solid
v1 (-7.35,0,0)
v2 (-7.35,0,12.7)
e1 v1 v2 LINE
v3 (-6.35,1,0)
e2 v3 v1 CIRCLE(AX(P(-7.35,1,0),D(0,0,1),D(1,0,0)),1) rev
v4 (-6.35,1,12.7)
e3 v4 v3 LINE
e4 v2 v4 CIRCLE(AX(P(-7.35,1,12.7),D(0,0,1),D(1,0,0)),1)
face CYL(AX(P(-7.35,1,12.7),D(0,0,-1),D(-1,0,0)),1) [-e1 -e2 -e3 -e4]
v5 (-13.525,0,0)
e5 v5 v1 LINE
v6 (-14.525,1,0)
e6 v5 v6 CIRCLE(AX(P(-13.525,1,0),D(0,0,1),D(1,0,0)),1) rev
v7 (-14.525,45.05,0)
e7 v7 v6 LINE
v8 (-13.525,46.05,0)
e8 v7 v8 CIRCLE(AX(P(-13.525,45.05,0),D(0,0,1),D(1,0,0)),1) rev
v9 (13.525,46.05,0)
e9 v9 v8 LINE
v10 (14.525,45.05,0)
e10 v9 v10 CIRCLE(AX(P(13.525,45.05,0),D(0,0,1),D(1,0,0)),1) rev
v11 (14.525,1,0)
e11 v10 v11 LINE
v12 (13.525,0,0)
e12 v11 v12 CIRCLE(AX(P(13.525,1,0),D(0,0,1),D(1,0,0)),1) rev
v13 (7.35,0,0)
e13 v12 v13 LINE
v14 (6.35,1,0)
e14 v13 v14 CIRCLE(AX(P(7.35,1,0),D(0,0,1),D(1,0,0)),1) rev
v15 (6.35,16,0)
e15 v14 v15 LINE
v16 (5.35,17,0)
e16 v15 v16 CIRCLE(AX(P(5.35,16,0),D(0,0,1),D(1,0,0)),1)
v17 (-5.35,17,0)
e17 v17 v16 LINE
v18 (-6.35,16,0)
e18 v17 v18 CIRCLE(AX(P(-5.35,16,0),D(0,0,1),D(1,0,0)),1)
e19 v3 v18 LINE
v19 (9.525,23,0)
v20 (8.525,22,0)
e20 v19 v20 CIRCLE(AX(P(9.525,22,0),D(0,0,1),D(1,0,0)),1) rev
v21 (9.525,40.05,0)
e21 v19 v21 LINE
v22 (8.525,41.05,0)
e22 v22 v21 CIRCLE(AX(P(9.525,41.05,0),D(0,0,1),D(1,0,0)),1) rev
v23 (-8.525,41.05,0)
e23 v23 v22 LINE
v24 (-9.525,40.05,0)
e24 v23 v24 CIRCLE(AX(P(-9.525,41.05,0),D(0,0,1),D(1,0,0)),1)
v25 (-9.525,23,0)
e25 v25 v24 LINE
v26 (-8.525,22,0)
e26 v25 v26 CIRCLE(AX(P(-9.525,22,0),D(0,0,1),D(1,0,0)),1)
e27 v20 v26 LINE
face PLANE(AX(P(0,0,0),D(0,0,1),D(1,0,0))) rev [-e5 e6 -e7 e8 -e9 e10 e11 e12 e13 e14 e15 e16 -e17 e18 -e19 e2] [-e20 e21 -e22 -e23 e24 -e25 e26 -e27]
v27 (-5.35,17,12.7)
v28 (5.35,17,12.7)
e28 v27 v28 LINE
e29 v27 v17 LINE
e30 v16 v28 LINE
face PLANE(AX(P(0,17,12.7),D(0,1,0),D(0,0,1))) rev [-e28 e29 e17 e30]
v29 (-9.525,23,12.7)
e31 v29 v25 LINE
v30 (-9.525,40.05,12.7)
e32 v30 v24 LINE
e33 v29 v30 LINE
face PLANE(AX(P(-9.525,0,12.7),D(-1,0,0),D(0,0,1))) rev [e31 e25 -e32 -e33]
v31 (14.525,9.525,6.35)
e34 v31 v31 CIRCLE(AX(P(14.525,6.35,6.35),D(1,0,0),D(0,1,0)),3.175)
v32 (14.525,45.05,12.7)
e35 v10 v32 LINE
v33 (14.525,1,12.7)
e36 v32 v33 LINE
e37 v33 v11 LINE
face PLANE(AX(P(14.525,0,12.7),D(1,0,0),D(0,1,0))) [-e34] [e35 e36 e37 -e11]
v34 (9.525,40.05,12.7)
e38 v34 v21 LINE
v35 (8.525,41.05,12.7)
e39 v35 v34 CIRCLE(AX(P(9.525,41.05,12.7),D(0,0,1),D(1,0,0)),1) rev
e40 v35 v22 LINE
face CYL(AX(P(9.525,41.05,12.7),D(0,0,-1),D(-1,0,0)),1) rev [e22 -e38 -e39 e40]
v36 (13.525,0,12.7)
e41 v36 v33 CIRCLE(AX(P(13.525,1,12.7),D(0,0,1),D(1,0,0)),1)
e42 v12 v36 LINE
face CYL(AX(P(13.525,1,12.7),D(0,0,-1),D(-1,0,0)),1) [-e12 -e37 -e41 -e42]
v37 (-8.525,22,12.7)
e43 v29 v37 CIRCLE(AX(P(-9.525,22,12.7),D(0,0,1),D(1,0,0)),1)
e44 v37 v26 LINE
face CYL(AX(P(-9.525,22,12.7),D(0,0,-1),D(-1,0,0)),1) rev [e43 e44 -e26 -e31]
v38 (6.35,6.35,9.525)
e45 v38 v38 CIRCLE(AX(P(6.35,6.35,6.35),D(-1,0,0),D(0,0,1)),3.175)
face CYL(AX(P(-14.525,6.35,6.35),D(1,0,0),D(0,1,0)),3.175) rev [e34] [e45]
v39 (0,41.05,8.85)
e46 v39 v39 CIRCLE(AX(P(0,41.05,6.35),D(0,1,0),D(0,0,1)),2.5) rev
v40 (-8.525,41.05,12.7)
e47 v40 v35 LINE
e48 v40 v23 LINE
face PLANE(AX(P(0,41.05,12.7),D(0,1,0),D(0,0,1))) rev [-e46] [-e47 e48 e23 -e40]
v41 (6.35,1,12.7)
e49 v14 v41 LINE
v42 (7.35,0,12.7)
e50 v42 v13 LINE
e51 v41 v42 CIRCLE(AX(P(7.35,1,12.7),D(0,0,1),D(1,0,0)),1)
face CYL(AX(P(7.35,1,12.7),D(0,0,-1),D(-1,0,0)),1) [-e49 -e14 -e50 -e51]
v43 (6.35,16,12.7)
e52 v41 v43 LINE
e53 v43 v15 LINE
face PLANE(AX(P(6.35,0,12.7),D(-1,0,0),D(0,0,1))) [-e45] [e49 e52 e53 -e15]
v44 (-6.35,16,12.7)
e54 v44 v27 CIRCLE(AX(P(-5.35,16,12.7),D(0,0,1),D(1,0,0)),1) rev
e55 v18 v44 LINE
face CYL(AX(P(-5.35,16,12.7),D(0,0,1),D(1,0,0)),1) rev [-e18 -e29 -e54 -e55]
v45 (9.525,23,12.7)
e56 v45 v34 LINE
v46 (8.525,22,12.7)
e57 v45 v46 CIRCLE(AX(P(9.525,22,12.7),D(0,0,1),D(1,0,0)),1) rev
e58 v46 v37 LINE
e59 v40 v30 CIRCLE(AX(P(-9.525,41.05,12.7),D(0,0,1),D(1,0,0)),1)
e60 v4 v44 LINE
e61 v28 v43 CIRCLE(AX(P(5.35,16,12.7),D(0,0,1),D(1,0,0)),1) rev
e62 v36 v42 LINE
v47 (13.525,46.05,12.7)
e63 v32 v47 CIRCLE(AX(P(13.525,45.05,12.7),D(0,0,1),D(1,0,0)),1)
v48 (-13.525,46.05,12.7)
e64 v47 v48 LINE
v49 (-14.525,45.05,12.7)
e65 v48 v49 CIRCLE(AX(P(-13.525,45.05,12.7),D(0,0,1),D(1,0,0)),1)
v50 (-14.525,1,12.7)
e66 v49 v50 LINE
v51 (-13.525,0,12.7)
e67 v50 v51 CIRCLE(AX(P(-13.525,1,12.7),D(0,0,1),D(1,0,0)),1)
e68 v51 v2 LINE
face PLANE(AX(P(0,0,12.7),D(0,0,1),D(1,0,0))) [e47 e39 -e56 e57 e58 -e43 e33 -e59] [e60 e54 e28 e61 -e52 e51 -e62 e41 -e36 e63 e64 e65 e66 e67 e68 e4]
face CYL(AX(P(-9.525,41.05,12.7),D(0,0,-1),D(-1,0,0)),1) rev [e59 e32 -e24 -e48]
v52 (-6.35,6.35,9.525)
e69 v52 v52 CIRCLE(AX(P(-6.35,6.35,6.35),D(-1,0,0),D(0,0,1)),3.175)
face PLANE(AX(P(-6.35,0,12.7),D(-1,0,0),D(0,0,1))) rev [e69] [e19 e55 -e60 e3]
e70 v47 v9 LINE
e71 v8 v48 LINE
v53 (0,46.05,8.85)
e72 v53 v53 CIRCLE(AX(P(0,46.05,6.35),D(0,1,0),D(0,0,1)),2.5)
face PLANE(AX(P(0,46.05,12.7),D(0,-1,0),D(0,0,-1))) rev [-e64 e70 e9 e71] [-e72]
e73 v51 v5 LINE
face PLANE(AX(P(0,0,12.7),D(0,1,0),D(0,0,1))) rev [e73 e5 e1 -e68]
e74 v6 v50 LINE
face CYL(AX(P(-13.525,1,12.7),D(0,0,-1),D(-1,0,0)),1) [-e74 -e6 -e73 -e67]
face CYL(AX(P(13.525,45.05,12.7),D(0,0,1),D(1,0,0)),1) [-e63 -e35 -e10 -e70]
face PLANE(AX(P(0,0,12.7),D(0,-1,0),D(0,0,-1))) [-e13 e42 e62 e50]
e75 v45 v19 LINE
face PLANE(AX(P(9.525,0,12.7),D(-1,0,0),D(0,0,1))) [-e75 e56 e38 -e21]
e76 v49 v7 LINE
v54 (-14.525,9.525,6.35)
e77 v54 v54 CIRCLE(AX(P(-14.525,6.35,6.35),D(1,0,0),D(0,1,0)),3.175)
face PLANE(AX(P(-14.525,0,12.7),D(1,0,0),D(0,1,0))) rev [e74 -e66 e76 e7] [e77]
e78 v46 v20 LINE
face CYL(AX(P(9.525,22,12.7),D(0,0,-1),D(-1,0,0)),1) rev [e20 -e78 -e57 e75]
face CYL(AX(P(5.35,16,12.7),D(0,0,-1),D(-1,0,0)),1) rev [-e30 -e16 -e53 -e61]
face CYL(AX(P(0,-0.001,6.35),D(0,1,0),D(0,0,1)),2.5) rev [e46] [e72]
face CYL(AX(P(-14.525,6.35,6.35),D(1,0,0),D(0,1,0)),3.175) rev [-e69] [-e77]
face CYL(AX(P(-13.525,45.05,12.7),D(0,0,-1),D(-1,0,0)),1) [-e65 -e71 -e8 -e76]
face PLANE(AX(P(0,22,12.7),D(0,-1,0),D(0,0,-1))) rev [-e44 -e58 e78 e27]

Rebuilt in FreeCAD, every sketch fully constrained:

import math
import FreeCAD as App
import Part
import Sketcher
from FreeCAD import Vector
Q = App.Units.Quantity


def edges_at(feature, points):
    """Names of the edges that pass closest to the given points."""
    edges = feature.Shape.Edges
    near = lambda p: min(range(len(edges)), key=lambda i: edges[i].distToShape(Part.Vertex(*p))[0])
    return sorted({f"Edge{near(p) + 1}" for p in points})

doc = App.newDocument("Part")
body = doc.addObject("PartDesign::Body", "Body")

# Sketch on XY plane
sketch1 = body.newObject("Sketcher::SketchObject", "Sketch")
sketch1.AttachmentSupport = (doc.getObject("XY_Plane"), [""])
sketch1.MapMode = "FlatFace"
sketch1.addGeometry(Part.LineSegment(Vector(-14.525, 46.05, 0), Vector(-14.525, 0, 0)), False)
sketch1.addGeometry(Part.LineSegment(Vector(-14.525, 0, 0), Vector(-6.35, 0, 0)), False)
sketch1.addGeometry(Part.LineSegment(Vector(-6.35, 0, 0), Vector(-6.35, 17, 0)), False)
sketch1.addGeometry(Part.LineSegment(Vector(-6.35, 17, 0), Vector(6.35, 17, 0)), False)
sketch1.addGeometry(Part.LineSegment(Vector(6.35, 17, 0), Vector(6.35, 0, 0)), False)
sketch1.addGeometry(Part.LineSegment(Vector(6.35, 0, 0), Vector(14.525, 0, 0)), False)
sketch1.addGeometry(Part.LineSegment(Vector(14.525, 0, 0), Vector(14.525, 46.05, 0)), False)
sketch1.addGeometry(Part.LineSegment(Vector(14.525, 46.05, 0), Vector(-14.525, 46.05, 0)), False)
sketch1.addGeometry(Part.ArcOfCircle(Part.Circle(Vector(-9.525, 22, 0), Vector(0, 0, 1), 1), math.radians(90), math.radians(360)), False)
sketch1.addGeometry(Part.LineSegment(Vector(-9.525, 23, 0), Vector(-9.525, 40.05, 0)), False)
sketch1.addGeometry(Part.ArcOfCircle(Part.Circle(Vector(-9.525, 41.05, 0), Vector(0, 0, 1), 1), math.radians(0), math.radians(270)), False)
sketch1.addGeometry(Part.LineSegment(Vector(-8.525, 41.05, 0), Vector(8.525, 41.05, 0)), False)
sketch1.addGeometry(Part.ArcOfCircle(Part.Circle(Vector(9.525, 41.05, 0), Vector(0, 0, 1), 1), math.radians(0), math.radians(180)), False)
sketch1.addGeometry(Part.ArcOfCircle(Part.Circle(Vector(9.525, 41.05, 0), Vector(0, 0, 1), 1), math.radians(-90), math.radians(0)), False)
sketch1.addGeometry(Part.LineSegment(Vector(9.525, 40.05, 0), Vector(9.525, 23, 0)), False)
sketch1.addGeometry(Part.ArcOfCircle(Part.Circle(Vector(9.525, 22, 0), Vector(0, 0, 1), 1), math.radians(0), math.radians(90)), False)
sketch1.addGeometry(Part.ArcOfCircle(Part.Circle(Vector(9.525, 22, 0), Vector(0, 0, 1), 1), math.radians(180), math.radians(360)), False)
sketch1.addGeometry(Part.LineSegment(Vector(8.525, 22, 0), Vector(-8.525, 22, 0)), False)
sketch1.addConstraint(Sketcher.Constraint("Coincident", 0, 2, 1, 1))
sketch1.addConstraint(Sketcher.Constraint("Coincident", 1, 2, 2, 1))
sketch1.addConstraint(Sketcher.Constraint("Coincident", 2, 2, 3, 1))
sketch1.addConstraint(Sketcher.Constraint("Coincident", 3, 2, 4, 1))
sketch1.addConstraint(Sketcher.Constraint("Coincident", 4, 2, 5, 1))
sketch1.addConstraint(Sketcher.Constraint("Coincident", 5, 2, 6, 1))
sketch1.addConstraint(Sketcher.Constraint("Coincident", 6, 2, 7, 1))
sketch1.addConstraint(Sketcher.Constraint("Coincident", 7, 2, 0, 1))
sketch1.addConstraint(Sketcher.Constraint("Coincident", 8, 1, 9, 1))
sketch1.addConstraint(Sketcher.Constraint("Coincident", 9, 2, 10, 2))
sketch1.addConstraint(Sketcher.Constraint("Coincident", 10, 1, 11, 1))
sketch1.addConstraint(Sketcher.Constraint("Coincident", 11, 2, 12, 2))
sketch1.addConstraint(Sketcher.Constraint("Tangent", 12, 1, 13, 2))
sketch1.addConstraint(Sketcher.Constraint("Coincident", 13, 1, 14, 1))
sketch1.addConstraint(Sketcher.Constraint("Coincident", 14, 2, 15, 2))
sketch1.addConstraint(Sketcher.Constraint("Tangent", 15, 1, 16, 2))
sketch1.addConstraint(Sketcher.Constraint("Coincident", 16, 1, 17, 1))
sketch1.addConstraint(Sketcher.Constraint("Coincident", 17, 2, 8, 2))
sketch1.addConstraint(Sketcher.Constraint("Vertical", 0))
sketch1.addConstraint(Sketcher.Constraint("Horizontal", 1))
sketch1.addConstraint(Sketcher.Constraint("Vertical", 2))
sketch1.addConstraint(Sketcher.Constraint("Horizontal", 3))
sketch1.addConstraint(Sketcher.Constraint("Vertical", 4))
sketch1.addConstraint(Sketcher.Constraint("Horizontal", 5))
sketch1.addConstraint(Sketcher.Constraint("Vertical", 6))
sketch1.addConstraint(Sketcher.Constraint("Horizontal", 7))
sketch1.addConstraint(Sketcher.Constraint("Vertical", 9))
sketch1.addConstraint(Sketcher.Constraint("Horizontal", 11))
sketch1.addConstraint(Sketcher.Constraint("Vertical", 14))
sketch1.addConstraint(Sketcher.Constraint("Horizontal", 17))
sketch1.addConstraint(Sketcher.Constraint("Equal", 8, 10))
sketch1.addConstraint(Sketcher.Constraint("Equal", 10, 12))
sketch1.addConstraint(Sketcher.Constraint("Equal", 12, 13))
sketch1.addConstraint(Sketcher.Constraint("Equal", 13, 15))
sketch1.addConstraint(Sketcher.Constraint("Equal", 15, 16))
sketch1.addConstraint(Sketcher.Constraint("Symmetric", 1, 2, 4, 2, -1, 1))
sketch1.addConstraint(Sketcher.Constraint("Symmetric", 10, 3, 12, 3, -2))
sketch1.addConstraint(Sketcher.Constraint("Symmetric", 8, 3, 15, 3, -2))
sketch1.addConstraint(Sketcher.Constraint("Symmetric", 0, 2, 5, 2, -2))
sketch1.addConstraint(Sketcher.Constraint("Horizontal", 13, 3, 10, 1))
sketch1.addConstraint(Sketcher.Constraint("Horizontal", 11, 2, 12, 1))
sketch1.addConstraint(Sketcher.Constraint("Horizontal", 16, 3, 15, 1))
sketch1.addConstraint(Sketcher.Constraint("Horizontal", 15, 1, 16, 1))
sketch1.addConstraint(Sketcher.Constraint("Vertical", 8, 3, 10, 3))
sketch1.addConstraint(Sketcher.Constraint("Vertical", 10, 3, 8, 1))
sketch1.addConstraint(Sketcher.Constraint("Vertical", 16, 3, 13, 1))
sketch1.addConstraint(Sketcher.Constraint("Equal", 17, 9))
sketch1.addConstraint(Sketcher.Constraint("Radius", 8, Q("1 mm")))
sketch1.addConstraint(Sketcher.Constraint("DistanceY", 2, 1, 2, 2, Q("17 mm")))
sketch1.addConstraint(Sketcher.Constraint("DistanceX", 3, 1, 3, 2, Q("12.7 mm")))
sketch1.addConstraint(Sketcher.Constraint("DistanceY", -1, 1, 8, 3, Q("22 mm")))
sketch1.addConstraint(Sketcher.Constraint("DistanceX", 0, 2, 8, 3, Q("5 mm")))
sketch1.addConstraint(Sketcher.Constraint("DistanceY", 13, 3, 6, 2, Q("5 mm")))
sketch1.addConstraint(Sketcher.Constraint("DistanceX", 7, 2, 7, 1, Q("29.05 mm")))
pad1 = body.newObject("PartDesign::Pad", "Pad")
pad1.Profile = sketch1
pad1.Length = 12.7

# Sketch on YZ plane
sketch2 = body.newObject("Sketcher::SketchObject", "Sketch001")
sketch2.AttachmentSupport = (doc.getObject("YZ_Plane"), [""])
sketch2.MapMode = "FlatFace"
sketch2.AttachmentOffset = App.Placement(Vector(0, 0, -6.35), App.Rotation())
sketch2.addGeometry(Part.Circle(Vector(6.35, 6.35, 0), Vector(0, 0, 1), 3.175), False)
sketch2.addConstraint(Sketcher.Constraint("Diameter", 0, Q("6.35 mm")))
sketch2.addConstraint(Sketcher.Constraint("DistanceX", -1, 1, 0, 3, Q("6.35 mm")))
sketch2.addConstraint(Sketcher.Constraint("DistanceY", -1, 1, 0, 3, Q("6.35 mm")))
pocket1 = body.newObject("PartDesign::Pocket", "Pocket")
pocket1.Profile = sketch2
pocket1.Type = "ThroughAll"
pocket1.Midplane = True
doc.recompute()

fillet = body.newObject("PartDesign::Fillet", "Fillet")
fillet.Base = (pocket1, edges_at(pocket1, [
    (14.525, 0, 6.35),
    (6.35, 0, 6.35),
    (6.35, 17, 6.35),
    (-6.35, 17, 6.35),
    (-6.35, 0, 6.35),
    (-14.525, 0, 6.35),
    (-14.525, 46.05, 6.35),
    (14.525, 46.05, 6.35),
]))
fillet.Radius = 1

# Sketch on XZ plane
sketch3 = body.newObject("Sketcher::SketchObject", "Sketch002")
sketch3.AttachmentSupport = (doc.getObject("XZ_Plane"), [""])
sketch3.MapMode = "FlatFace"
sketch3.AttachmentOffset = App.Placement(Vector(0, 0, -46.05), App.Rotation())
sketch3.addGeometry(Part.Circle(Vector(0, 6.35, 0), Vector(0, 0, 1), 2.5), False)
sketch3.addConstraint(Sketcher.Constraint("PointOnObject", 0, 3, -2))
sketch3.addConstraint(Sketcher.Constraint("Diameter", 0, Q("5 mm")))
sketch3.addConstraint(Sketcher.Constraint("DistanceY", -1, 1, 0, 3, Q("6.35 mm")))
pocket2 = body.newObject("PartDesign::Pocket", "Pocket001")
pocket2.Profile = sketch3
pocket2.Type = "UpToFirst"
pocket2.Reversed = True

doc.recompute()
